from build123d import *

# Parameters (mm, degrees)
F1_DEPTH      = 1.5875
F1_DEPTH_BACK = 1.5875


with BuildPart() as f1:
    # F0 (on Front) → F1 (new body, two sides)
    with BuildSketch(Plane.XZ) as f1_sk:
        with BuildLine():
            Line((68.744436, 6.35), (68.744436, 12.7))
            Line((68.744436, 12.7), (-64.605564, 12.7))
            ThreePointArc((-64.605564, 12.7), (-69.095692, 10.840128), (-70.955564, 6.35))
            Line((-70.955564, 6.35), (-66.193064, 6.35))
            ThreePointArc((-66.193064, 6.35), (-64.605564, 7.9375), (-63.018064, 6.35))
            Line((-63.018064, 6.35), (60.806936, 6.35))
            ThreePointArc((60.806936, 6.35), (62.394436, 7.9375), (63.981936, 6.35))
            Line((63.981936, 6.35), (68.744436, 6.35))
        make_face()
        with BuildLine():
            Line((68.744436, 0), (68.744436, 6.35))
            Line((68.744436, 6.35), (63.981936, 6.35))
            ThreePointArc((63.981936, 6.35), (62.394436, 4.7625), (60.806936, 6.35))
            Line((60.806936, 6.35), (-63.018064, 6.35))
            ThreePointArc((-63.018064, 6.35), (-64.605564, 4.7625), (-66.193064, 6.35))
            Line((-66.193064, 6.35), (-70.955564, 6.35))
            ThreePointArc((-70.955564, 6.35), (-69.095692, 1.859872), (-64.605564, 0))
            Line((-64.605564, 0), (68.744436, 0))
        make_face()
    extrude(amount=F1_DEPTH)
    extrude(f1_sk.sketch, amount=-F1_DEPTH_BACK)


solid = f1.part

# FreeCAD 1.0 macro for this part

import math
import FreeCAD as App
import Part
import Sketcher

V = App.Vector
Q = App.Units.Quantity

doc = App.newDocument("Part")
body = doc.addObject("PartDesign::Body", "Body")

# Sketch on XZ plane
sketch1 = body.newObject("Sketcher::SketchObject", "Sketch")
sketch1.AttachmentSupport = (doc.getObject("XZ_Plane"), [""])
sketch1.MapMode = "FlatFace"
sketch1.addGeometry(Part.LineSegment(V(68.7, 12.7, 0), V(-64.6, 12.7, 0)), False)
sketch1.addGeometry(Part.ArcOfCircle(Part.Circle(V(-64.6, 6.3, 0), V(0, 0, 1), 6.4), math.radians(90), math.radians(180)), False)
sketch1.addGeometry(Part.ArcOfCircle(Part.Circle(V(-64.6, 6.4, 0), V(0, 0, 1), 6.4), math.radians(-180), math.radians(-90)), False)
sketch1.addGeometry(Part.LineSegment(V(-64.6, 0, 0), V(68.7, 0, 0)), False)
sketch1.addGeometry(Part.LineSegment(V(68.7, 0, 0), V(68.7, 12.7, 0)), False)
sketch1.addGeometry(Part.Circle(V(-64.6, 6.3, 0), V(0, 0, 1), 1.6), False)
sketch1.addGeometry(Part.Circle(V(62.4, 6.3, 0), V(0, 0, 1), 1.6), False)
sketch1.addConstraint(Sketcher.Constraint("Tangent", 0, 2, 1, 1))
sketch1.addConstraint(Sketcher.Constraint("Tangent", 1, 2, 2, 1))
sketch1.addConstraint(Sketcher.Constraint("Tangent", 2, 2, 3, 1))
sketch1.addConstraint(Sketcher.Constraint("Coincident", 3, 2, 4, 1))
sketch1.addConstraint(Sketcher.Constraint("Coincident", 4, 2, 0, 1))
sketch1.addConstraint(Sketcher.Constraint("Horizontal", 0))
sketch1.addConstraint(Sketcher.Constraint("Horizontal", 3))
sketch1.addConstraint(Sketcher.Constraint("Vertical", 4))
sketch1.addConstraint(Sketcher.Constraint("Coincident", 5, 3, 1, 3))
sketch1.addConstraint(Sketcher.Constraint("Equal", 1, 2))
sketch1.addConstraint(Sketcher.Constraint("Equal", 5, 6))
sketch1.addConstraint(Sketcher.Constraint("PointOnObject", 2, 2, -1))
sketch1.addConstraint(Sketcher.Constraint("Horizontal", 5, 3, 6, 3))
sketch1.addConstraint(Sketcher.Constraint("Horizontal", 6, 3, 1, 2))
sketch1.addConstraint(Sketcher.Constraint("Radius", 1, Q("0.25 in")))
sketch1.addConstraint(Sketcher.Constraint("Diameter", 5, Q("0.125 in")))
sketch1.addConstraint(Sketcher.Constraint("DistanceX", 1, 3, 6, 3, Q("5 in")))
sketch1.addConstraint(Sketcher.Constraint("DistanceX", 0, 2, 0, 1, Q("5.25 in")))
sketch1.addConstraint(Sketcher.Constraint("DistanceX", 1, 3, -1, 1, Q("64.605564 mm")))
pad1 = body.newObject("PartDesign::Pad", "Pad")
pad1.Profile = sketch1
pad1.Type = "TwoLengths"
pad1.Length = Q("0.0625 in")
pad1.Length2 = Q("0.0625 in")

doc.recompute()
